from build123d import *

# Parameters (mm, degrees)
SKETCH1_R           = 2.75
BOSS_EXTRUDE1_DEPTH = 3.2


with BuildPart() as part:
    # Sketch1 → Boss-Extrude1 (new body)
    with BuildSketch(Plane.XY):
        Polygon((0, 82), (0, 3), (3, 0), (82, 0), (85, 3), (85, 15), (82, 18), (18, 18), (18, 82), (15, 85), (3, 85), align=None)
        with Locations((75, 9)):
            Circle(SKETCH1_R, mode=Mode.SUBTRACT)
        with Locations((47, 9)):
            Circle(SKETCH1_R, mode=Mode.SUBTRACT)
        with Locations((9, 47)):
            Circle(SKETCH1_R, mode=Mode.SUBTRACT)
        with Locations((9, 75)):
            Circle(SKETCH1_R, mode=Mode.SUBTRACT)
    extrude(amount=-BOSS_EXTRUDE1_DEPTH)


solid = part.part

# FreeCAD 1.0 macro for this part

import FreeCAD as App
import Part
import Sketcher

V = App.Vector


def add_polygon(sketch, points):
    """Adds a closed chain of lines whose ends are joined by coincident constraints."""
    first, n = sketch.GeometryCount, len(points)
    for a, b in zip(points, points[1:] + points[:1]):
        sketch.addGeometry(Part.LineSegment(App.Vector(*a, 0), App.Vector(*b, 0)), False)
    for i in range(n):
        sketch.addConstraint(Sketcher.Constraint("Coincident", first + i, 2, first + (i + 1) % n, 1))

doc = App.newDocument("Part")
body = doc.addObject("PartDesign::Body", "Body")

# Sketch on XY plane
sketch1 = body.newObject("Sketcher::SketchObject", "Sketch")
sketch1.AttachmentSupport = (doc.getObject("XY_Plane"), [""])
sketch1.MapMode = "FlatFace"
add_polygon(sketch1, [(0, 82), (0, 3), (3, 0), (82, 0), (85, 3), (85, 15), (82, 18), (18, 18), (18, 82), (15, 85), (3, 85)])  # lines 0-10
sketch1.addGeometry(Part.Circle(V(47, 9, 0), V(0, 0, 1), 2.8), False)  # 11
sketch1.addGeometry(Part.Circle(V(75, 9, 0), V(0, 0, 1), 2.8), False)  # 12
sketch1.addGeometry(Part.Circle(V(9, 47, 0), V(0, 0, 1), 2.8), False)  # 13
sketch1.addGeometry(Part.Circle(V(9, 75, 0), V(0, 0, 1), 2.8), False)  # 14
sketch1.addConstraint([
    Sketcher.Constraint("Vertical", 0),
    Sketcher.Constraint("Horizontal", 2),
    Sketcher.Constraint("Vertical", 4),
    Sketcher.Constraint("Horizontal", 6),
    Sketcher.Constraint("Vertical", 7),
    Sketcher.Constraint("Horizontal", 9),
    Sketcher.Constraint("Equal", 11, 12),
    Sketcher.Constraint("Equal", 12, 13),
    Sketcher.Constraint("Equal", 13, 14),
    Sketcher.Constraint("PointOnObject", 0, 2, -2),
    Sketcher.Constraint("PointOnObject", 1, 2, -1),
    Sketcher.Constraint("Perpendicular", 1, 3),
    Sketcher.Constraint("Perpendicular", 3, 5),
    Sketcher.Constraint("Parallel", 5, 8),
    Sketcher.Constraint("Perpendicular", 8, 10),
    Sketcher.Constraint("Horizontal", 11, 3, 12, 3),
    Sketcher.Constraint("Horizontal", 0, 2, 3, 2),
    Sketcher.Constraint("Horizontal", 7, 2, 10, 2),
    Sketcher.Constraint("Vertical", 13, 3, 14, 3),
    Sketcher.Constraint("Vertical", 2, 2, 5, 2),
    Sketcher.Constraint("Vertical", 1, 2, 9, 2),
    Sketcher.Constraint("Equal", 2, 0),
    Sketcher.Constraint("Equal", 9, 4),
    Sketcher.Constraint("Equal", 6, 7),
    Sketcher.Constraint("Diameter", 11, 5.5),
    Sketcher.Constraint("DistanceX", 2, 1, 2, 2, 79.0),
    Sketcher.Constraint("DistanceX", 6, 2, 6, 1, 64.0),
    Sketcher.Constraint("DistanceX", 9, 2, 9, 1, 12.0),
    Sketcher.Constraint("DistanceX", -1, 1, 11, 3, 47.0),
    Sketcher.Constraint("DistanceY", -1, 1, 11, 3, 9.0),
    Sketcher.Constraint("DistanceX", -1, 1, 12, 3, 75.0),
    Sketcher.Constraint("DistanceX", -1, 1, 13, 3, 9.0),
    Sketcher.Constraint("DistanceY", -1, 1, 13, 3, 47.0),
    Sketcher.Constraint("DistanceY", -1, 1, 14, 3, 75.0),
])
pad1 = body.newObject("PartDesign::Pad", "Pad")
pad1.Profile = sketch1
pad1.Length = 3.2
pad1.Reversed = True

doc.recompute()
